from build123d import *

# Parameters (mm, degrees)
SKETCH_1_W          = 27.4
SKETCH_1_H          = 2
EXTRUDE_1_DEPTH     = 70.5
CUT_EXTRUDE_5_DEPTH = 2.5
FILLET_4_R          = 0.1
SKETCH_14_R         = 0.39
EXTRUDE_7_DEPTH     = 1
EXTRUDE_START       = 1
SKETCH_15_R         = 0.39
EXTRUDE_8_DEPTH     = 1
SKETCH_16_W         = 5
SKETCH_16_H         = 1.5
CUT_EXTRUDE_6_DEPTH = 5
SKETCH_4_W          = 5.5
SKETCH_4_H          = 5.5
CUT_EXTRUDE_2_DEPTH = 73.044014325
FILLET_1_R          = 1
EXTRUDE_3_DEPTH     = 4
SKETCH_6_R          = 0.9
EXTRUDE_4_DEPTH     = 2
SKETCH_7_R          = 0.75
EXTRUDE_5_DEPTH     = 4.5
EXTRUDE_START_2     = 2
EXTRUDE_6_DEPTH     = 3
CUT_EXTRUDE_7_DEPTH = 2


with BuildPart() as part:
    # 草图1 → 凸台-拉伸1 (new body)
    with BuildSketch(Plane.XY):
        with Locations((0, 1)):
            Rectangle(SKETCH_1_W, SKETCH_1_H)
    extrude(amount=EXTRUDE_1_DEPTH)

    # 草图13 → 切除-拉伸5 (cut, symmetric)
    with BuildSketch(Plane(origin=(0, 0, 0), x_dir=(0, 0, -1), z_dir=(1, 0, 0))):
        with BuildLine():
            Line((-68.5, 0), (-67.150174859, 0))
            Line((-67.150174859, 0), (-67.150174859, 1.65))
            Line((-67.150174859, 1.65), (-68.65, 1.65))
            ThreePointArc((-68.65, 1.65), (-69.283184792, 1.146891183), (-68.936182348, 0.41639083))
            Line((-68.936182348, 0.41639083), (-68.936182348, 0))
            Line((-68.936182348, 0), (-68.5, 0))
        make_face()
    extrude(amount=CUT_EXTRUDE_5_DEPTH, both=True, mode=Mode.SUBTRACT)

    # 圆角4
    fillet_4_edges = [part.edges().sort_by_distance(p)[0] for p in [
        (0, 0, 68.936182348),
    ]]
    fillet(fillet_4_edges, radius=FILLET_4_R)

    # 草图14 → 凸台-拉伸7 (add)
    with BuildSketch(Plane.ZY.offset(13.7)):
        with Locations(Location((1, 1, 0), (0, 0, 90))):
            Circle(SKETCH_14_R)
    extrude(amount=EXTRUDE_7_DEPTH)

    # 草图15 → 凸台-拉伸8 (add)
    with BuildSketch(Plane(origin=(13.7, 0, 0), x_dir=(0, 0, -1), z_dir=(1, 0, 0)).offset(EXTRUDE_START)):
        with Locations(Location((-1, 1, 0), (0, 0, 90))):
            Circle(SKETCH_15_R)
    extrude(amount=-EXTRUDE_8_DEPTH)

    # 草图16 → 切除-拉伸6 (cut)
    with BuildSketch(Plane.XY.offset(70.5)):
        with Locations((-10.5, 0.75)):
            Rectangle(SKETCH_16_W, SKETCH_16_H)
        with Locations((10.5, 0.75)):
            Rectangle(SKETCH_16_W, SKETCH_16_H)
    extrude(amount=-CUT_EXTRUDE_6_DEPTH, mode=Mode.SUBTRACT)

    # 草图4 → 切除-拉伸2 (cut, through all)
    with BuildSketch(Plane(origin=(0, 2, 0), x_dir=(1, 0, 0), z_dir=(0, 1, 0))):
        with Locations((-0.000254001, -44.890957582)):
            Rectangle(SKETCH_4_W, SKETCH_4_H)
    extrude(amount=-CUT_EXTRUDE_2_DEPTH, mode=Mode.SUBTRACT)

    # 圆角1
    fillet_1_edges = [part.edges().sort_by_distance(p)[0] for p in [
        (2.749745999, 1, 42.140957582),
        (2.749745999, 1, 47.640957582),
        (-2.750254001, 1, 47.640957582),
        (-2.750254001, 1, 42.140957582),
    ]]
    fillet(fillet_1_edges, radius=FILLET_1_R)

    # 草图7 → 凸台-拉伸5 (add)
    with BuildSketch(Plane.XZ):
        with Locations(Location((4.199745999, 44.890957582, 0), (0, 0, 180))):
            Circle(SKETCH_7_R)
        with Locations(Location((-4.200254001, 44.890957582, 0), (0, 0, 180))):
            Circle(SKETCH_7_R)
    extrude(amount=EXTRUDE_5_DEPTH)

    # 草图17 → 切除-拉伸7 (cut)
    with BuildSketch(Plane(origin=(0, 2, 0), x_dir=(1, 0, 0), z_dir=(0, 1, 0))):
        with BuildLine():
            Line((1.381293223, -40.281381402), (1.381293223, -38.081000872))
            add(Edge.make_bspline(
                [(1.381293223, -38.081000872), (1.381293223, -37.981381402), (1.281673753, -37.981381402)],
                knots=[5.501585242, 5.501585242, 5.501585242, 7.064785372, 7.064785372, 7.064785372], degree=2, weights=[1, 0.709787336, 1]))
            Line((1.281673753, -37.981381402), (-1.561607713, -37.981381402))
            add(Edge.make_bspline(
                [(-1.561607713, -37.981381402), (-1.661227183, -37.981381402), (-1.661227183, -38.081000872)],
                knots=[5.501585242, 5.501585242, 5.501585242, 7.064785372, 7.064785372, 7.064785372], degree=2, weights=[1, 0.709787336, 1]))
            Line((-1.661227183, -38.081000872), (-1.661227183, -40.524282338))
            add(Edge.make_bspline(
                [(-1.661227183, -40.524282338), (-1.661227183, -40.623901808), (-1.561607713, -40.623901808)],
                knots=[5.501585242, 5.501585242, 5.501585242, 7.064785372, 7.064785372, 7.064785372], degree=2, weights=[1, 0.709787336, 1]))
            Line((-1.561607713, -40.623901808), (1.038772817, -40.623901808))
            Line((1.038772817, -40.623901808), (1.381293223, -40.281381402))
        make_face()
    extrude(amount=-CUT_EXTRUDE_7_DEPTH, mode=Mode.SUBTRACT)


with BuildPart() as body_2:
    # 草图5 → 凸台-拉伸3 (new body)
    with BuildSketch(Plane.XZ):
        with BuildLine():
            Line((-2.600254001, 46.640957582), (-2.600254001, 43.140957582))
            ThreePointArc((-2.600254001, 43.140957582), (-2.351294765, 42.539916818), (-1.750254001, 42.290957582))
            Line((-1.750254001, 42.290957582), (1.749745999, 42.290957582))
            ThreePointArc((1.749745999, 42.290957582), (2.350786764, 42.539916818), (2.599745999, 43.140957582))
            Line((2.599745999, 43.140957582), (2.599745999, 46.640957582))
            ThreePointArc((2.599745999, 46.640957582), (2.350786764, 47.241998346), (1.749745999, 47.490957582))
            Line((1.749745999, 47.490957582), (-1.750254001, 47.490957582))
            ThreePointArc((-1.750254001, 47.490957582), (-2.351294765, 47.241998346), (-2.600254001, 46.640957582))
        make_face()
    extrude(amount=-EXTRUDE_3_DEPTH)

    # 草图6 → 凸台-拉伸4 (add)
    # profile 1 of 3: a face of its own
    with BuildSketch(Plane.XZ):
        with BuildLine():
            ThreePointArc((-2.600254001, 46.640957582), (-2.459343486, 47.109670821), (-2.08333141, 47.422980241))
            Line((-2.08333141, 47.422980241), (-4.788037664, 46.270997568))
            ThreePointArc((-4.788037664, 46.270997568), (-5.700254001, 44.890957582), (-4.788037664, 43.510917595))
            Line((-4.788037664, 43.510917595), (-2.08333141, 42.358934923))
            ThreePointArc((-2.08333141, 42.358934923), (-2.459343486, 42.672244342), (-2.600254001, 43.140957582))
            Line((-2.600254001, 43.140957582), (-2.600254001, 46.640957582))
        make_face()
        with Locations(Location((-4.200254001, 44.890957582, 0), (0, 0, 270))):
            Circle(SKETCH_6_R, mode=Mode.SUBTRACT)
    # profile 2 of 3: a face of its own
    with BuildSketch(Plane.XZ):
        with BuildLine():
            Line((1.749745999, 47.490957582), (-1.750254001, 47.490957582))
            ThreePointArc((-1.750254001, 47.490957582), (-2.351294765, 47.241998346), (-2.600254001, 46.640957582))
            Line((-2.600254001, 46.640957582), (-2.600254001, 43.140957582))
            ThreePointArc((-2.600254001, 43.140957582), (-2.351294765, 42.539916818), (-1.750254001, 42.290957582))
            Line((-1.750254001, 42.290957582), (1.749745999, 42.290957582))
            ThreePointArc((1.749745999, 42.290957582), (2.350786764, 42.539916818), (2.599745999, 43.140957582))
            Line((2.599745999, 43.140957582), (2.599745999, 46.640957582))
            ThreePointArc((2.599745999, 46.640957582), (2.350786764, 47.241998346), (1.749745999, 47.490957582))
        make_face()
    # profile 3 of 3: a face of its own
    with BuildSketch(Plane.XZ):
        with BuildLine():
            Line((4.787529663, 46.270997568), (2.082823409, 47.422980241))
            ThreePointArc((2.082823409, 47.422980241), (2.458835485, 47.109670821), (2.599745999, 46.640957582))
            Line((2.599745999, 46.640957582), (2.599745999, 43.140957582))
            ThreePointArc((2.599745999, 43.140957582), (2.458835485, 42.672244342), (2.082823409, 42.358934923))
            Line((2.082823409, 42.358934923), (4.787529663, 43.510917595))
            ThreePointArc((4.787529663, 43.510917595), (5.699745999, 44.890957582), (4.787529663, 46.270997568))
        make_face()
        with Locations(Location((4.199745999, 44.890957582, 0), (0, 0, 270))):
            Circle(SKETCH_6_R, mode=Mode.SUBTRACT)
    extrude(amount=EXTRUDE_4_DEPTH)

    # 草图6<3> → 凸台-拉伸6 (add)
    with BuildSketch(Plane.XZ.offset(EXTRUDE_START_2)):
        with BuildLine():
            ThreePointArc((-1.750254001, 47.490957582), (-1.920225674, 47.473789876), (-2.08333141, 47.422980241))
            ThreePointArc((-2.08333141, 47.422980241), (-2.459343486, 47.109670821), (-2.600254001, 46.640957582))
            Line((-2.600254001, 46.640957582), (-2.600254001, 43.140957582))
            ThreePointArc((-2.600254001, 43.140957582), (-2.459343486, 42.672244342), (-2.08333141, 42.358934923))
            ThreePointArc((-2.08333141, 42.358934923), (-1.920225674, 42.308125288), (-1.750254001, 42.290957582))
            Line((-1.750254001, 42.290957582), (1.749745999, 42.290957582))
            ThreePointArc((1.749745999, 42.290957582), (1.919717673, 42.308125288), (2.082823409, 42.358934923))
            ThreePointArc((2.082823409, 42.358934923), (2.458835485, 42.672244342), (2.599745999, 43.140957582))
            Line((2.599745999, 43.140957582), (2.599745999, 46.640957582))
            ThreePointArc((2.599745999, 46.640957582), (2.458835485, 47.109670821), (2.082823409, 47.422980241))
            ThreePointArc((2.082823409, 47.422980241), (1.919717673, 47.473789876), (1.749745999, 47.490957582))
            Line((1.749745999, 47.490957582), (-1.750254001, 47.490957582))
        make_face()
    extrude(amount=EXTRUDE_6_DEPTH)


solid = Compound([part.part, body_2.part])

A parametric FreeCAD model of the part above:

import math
import FreeCAD as App
import Part
import Sketcher

V = App.Vector


def edges_at(feature, points):
    """Names of the edges that pass closest to the given points."""
    edges = feature.Shape.Edges
    near = lambda p: min(range(len(edges)), key=lambda i: edges[i].distToShape(Part.Vertex(*p))[0])
    return sorted({f"Edge{near(p) + 1}" for p in points})

doc = App.newDocument("Part")
body = doc.addObject("PartDesign::Body", "Body")

# Sketch on XY plane
sketch1 = body.newObject("Sketcher::SketchObject", "Sketch")
sketch1.AttachmentSupport = (doc.getObject("XY_Plane"), [""])
sketch1.MapMode = "FlatFace"
sketch1.addGeometry(Part.LineSegment(V(-13.7, 2, 0), V(-13.7, 0, 0)), False)
sketch1.addGeometry(Part.LineSegment(V(-13.7, 0, 0), V(13.7, 0, 0)), False)
sketch1.addGeometry(Part.LineSegment(V(13.7, 0, 0), V(13.7, 2, 0)), False)
sketch1.addGeometry(Part.LineSegment(V(13.7, 2, 0), V(-13.7, 2, 0)), False)
sketch1.addConstraint(Sketcher.Constraint("Coincident", 0, 2, 1, 1))
sketch1.addConstraint(Sketcher.Constraint("Coincident", 1, 2, 2, 1))
sketch1.addConstraint(Sketcher.Constraint("Coincident", 2, 2, 3, 1))
sketch1.addConstraint(Sketcher.Constraint("Coincident", 3, 2, 0, 1))
sketch1.addConstraint(Sketcher.Constraint("Vertical", 0))
sketch1.addConstraint(Sketcher.Constraint("Horizontal", 1))
sketch1.addConstraint(Sketcher.Constraint("Vertical", 2))
sketch1.addConstraint(Sketcher.Constraint("Horizontal", 3))
sketch1.addConstraint(Sketcher.Constraint("Symmetric", 0, 2, 1, 2, -1, 1))
sketch1.addConstraint(Sketcher.Constraint("DistanceY", 0, 2, 0, 1, 2.0))
sketch1.addConstraint(Sketcher.Constraint("DistanceX", 1, 1, 1, 2, 27.4))
pad1 = body.newObject("PartDesign::Pad", "Pad")
pad1.Profile = sketch1
pad1.Length = 70.5

# Sketch on YZ plane
sketch2 = body.newObject("Sketcher::SketchObject", "Sketch001")
sketch2.AttachmentSupport = (doc.getObject("YZ_Plane"), [""])
sketch2.MapMode = "FlatFace"
sketch2.addGeometry(Part.LineSegment(V(0, 67.150175, 0), V(1.65, 67.150175, 0)), False)
sketch2.addGeometry(Part.LineSegment(V(1.65, 67.150175, 0), V(1.65, 68.65, 0)), False)
sketch2.addGeometry(Part.ArcOfCircle(Part.Circle(V(1, 68.65, 0), V(0, 0, 1), 0.65), math.radians(0), math.radians(153.878218)), False)
sketch2.addGeometry(Part.LineSegment(V(0.416391, 68.936182, 0), V(0, 68.936182, 0)), False)
sketch2.addGeometry(Part.LineSegment(V(0, 68.936182, 0), V(0, 67.150175, 0)), False)
sketch2.addConstraint(Sketcher.Constraint("Coincident", 0, 2, 1, 1))
sketch2.addConstraint(Sketcher.Constraint("Tangent", 1, 2, 2, 1))
sketch2.addConstraint(Sketcher.Constraint("Coincident", 2, 2, 3, 1))
sketch2.addConstraint(Sketcher.Constraint("Coincident", 3, 2, 4, 1))
sketch2.addConstraint(Sketcher.Constraint("Coincident", 4, 2, 0, 1))
sketch2.addConstraint(Sketcher.Constraint("Horizontal", 0))
sketch2.addConstraint(Sketcher.Constraint("Vertical", 1))
sketch2.addConstraint(Sketcher.Constraint("Horizontal", 3))
sketch2.addConstraint(Sketcher.Constraint("Vertical", 4))
sketch2.addConstraint(Sketcher.Constraint("PointOnObject", 3, 2, -2))
sketch2.addConstraint(Sketcher.Constraint("Radius", 2, 0.65))
sketch2.addConstraint(Sketcher.Constraint("DistanceX", -1, 1, 2, 3, 1.0))
sketch2.addConstraint(Sketcher.Constraint("DistanceY", -1, 1, 2, 3, 68.65))
sketch2.addConstraint(Sketcher.Constraint("DistanceX", 3, 2, 3, 1, 0.416391))
sketch2.addConstraint(Sketcher.Constraint("DistanceY", 1, 1, 1, 2, 1.499825))
pocket1 = body.newObject("PartDesign::Pocket", "Pocket")
pocket1.Profile = sketch2
pocket1.Length = 5
pocket1.Midplane = True
doc.recompute()

fillet = body.newObject("PartDesign::Fillet", "Fillet")
fillet.Base = (pocket1, edges_at(pocket1, [(0, 0, 68.936)]))
fillet.Radius = 0.1

# Sketch on YZ plane
sketch3 = body.newObject("Sketcher::SketchObject", "Sketch002")
sketch3.AttachmentSupport = (doc.getObject("YZ_Plane"), [""])
sketch3.MapMode = "FlatFace"
sketch3.AttachmentOffset = App.Placement(V(0, 0, -13.7), App.Rotation())
sketch3.addGeometry(Part.Circle(V(1, 1, 0), V(0, 0, 1), 0.39), False)
sketch3.addConstraint(Sketcher.Constraint("Diameter", 0, 0.78))
sketch3.addConstraint(Sketcher.Constraint("DistanceX", -1, 1, 0, 3, 1.0))
sketch3.addConstraint(Sketcher.Constraint("DistanceY", -1, 1, 0, 3, 1.0))
pad2 = body.newObject("PartDesign::Pad", "Pad001")
pad2.Profile = sketch3
pad2.Length = 1
pad2.Reversed = True

# Sketch on YZ plane
sketch4 = body.newObject("Sketcher::SketchObject", "Sketch003")
sketch4.AttachmentSupport = (doc.getObject("YZ_Plane"), [""])
sketch4.MapMode = "FlatFace"
sketch4.AttachmentOffset = App.Placement(V(0, 0, 14.7), App.Rotation())
sketch4.addGeometry(Part.Circle(V(1, 1, 0), V(0, 0, 1), 0.39), False)
sketch4.addConstraint(Sketcher.Constraint("Diameter", 0, 0.78))
sketch4.addConstraint(Sketcher.Constraint("DistanceX", -1, 1, 0, 3, 1.0))
sketch4.addConstraint(Sketcher.Constraint("DistanceY", -1, 1, 0, 3, 1.0))
pad3 = body.newObject("PartDesign::Pad", "Pad002")
pad3.Profile = sketch4
pad3.Length = 1
pad3.Reversed = True

# Sketch on XY plane
sketch5 = body.newObject("Sketcher::SketchObject", "Sketch004")
sketch5.AttachmentSupport = (doc.getObject("XY_Plane"), [""])
sketch5.MapMode = "FlatFace"
sketch5.AttachmentOffset = App.Placement(V(0, 0, 70.5), App.Rotation())
sketch5.addGeometry(Part.LineSegment(V(-13, 1.5, 0), V(-13, 0, 0)), False)
sketch5.addGeometry(Part.LineSegment(V(-13, 0, 0), V(-8, 0, 0)), False)
sketch5.addGeometry(Part.LineSegment(V(-8, 0, 0), V(-8, 1.5, 0)), False)
sketch5.addGeometry(Part.LineSegment(V(-8, 1.5, 0), V(-13, 1.5, 0)), False)
sketch5.addGeometry(Part.LineSegment(V(8, 1.5, 0), V(8, 0, 0)), False)
sketch5.addGeometry(Part.LineSegment(V(8, 0, 0), V(13, 0, 0)), False)
sketch5.addGeometry(Part.LineSegment(V(13, 0, 0), V(13, 1.5, 0)), False)
sketch5.addGeometry(Part.LineSegment(V(13, 1.5, 0), V(8, 1.5, 0)), False)
sketch5.addConstraint(Sketcher.Constraint("Coincident", 0, 2, 1, 1))
sketch5.addConstraint(Sketcher.Constraint("Coincident", 1, 2, 2, 1))
sketch5.addConstraint(Sketcher.Constraint("Coincident", 2, 2, 3, 1))
sketch5.addConstraint(Sketcher.Constraint("Coincident", 3, 2, 0, 1))
sketch5.addConstraint(Sketcher.Constraint("Coincident", 4, 2, 5, 1))
sketch5.addConstraint(Sketcher.Constraint("Coincident", 5, 2, 6, 1))
sketch5.addConstraint(Sketcher.Constraint("Coincident", 6, 2, 7, 1))
sketch5.addConstraint(Sketcher.Constraint("Coincident", 7, 2, 4, 1))
sketch5.addConstraint(Sketcher.Constraint("Vertical", 0))
sketch5.addConstraint(Sketcher.Constraint("Horizontal", 1))
sketch5.addConstraint(Sketcher.Constraint("Vertical", 2))
sketch5.addConstraint(Sketcher.Constraint("Horizontal", 3))
sketch5.addConstraint(Sketcher.Constraint("Vertical", 4))
sketch5.addConstraint(Sketcher.Constraint("Horizontal", 5))
sketch5.addConstraint(Sketcher.Constraint("Vertical", 6))
sketch5.addConstraint(Sketcher.Constraint("Horizontal", 7))
sketch5.addConstraint(Sketcher.Constraint("Symmetric", 1, 2, 4, 2, -1, 1))
sketch5.addConstraint(Sketcher.Constraint("Symmetric", 0, 2, 5, 2, -2))
sketch5.addConstraint(Sketcher.Constraint("Horizontal", 3, 2, 6, 2))
sketch5.addConstraint(Sketcher.Constraint("DistanceX", 1, 1, 1, 2, 5.0))
sketch5.addConstraint(Sketcher.Constraint("DistanceY", 0, 2, 0, 1, 1.5))
sketch5.addConstraint(Sketcher.Constraint("DistanceX", 0, 2, -1, 1, 13.0))
pocket2 = body.newObject("PartDesign::Pocket", "Pocket001")
pocket2.Profile = sketch5
pocket2.Length = 5

# Sketch on XZ plane
sketch6 = body.newObject("Sketcher::SketchObject", "Sketch005")
sketch6.AttachmentSupport = (doc.getObject("XZ_Plane"), [""])
sketch6.MapMode = "FlatFace"
sketch6.AttachmentOffset = App.Placement(V(0, 0, -2), App.Rotation())
sketch6.addGeometry(Part.LineSegment(V(-2.750254, 42.140958, 0), V(-2.750254, 47.640958, 0)), False)
sketch6.addGeometry(Part.LineSegment(V(-2.750254, 47.640958, 0), V(2.749746, 47.640958, 0)), False)
sketch6.addGeometry(Part.LineSegment(V(2.749746, 47.640958, 0), V(2.749746, 42.140958, 0)), False)
sketch6.addGeometry(Part.LineSegment(V(2.749746, 42.140958, 0), V(-2.750254, 42.140958, 0)), False)
sketch6.addConstraint(Sketcher.Constraint("Coincident", 0, 2, 1, 1))
sketch6.addConstraint(Sketcher.Constraint("Coincident", 1, 2, 2, 1))
sketch6.addConstraint(Sketcher.Constraint("Coincident", 2, 2, 3, 1))
sketch6.addConstraint(Sketcher.Constraint("Coincident", 3, 2, 0, 1))
sketch6.addConstraint(Sketcher.Constraint("Vertical", 0))
sketch6.addConstraint(Sketcher.Constraint("Horizontal", 1))
sketch6.addConstraint(Sketcher.Constraint("Vertical", 2))
sketch6.addConstraint(Sketcher.Constraint("Horizontal", 3))
sketch6.addConstraint(Sketcher.Constraint("Equal", 3, 0))
sketch6.addConstraint(Sketcher.Constraint("DistanceX", 1, 1, 1, 2, 5.5))
sketch6.addConstraint(Sketcher.Constraint("DistanceX", 0, 2, -1, 1, 2.750254))
sketch6.addConstraint(Sketcher.Constraint("DistanceY", -1, 1, 0, 2, 47.640958))
pocket3 = body.newObject("PartDesign::Pocket", "Pocket002")
pocket3.Profile = sketch6
pocket3.Type = "ThroughAll"
pocket3.Reversed = True
doc.recompute()

fillet2 = body.newObject("PartDesign::Fillet", "Fillet001")
fillet2.Base = (pocket3, edges_at(pocket3, [
    (2.75, 1, 42.141),
    (2.75, 1, 47.641),
    (-2.75, 1, 47.641),
    (-2.75, 1, 42.141),
]))
fillet2.Radius = 1

# Sketch on XZ plane
sketch7 = body.newObject("Sketcher::SketchObject", "Sketch006")
sketch7.AttachmentSupport = (doc.getObject("XZ_Plane"), [""])
sketch7.MapMode = "FlatFace"
sketch7.addGeometry(Part.Circle(V(4.199746, 44.890958, 0), V(0, 0, 1), 0.75), False)
sketch7.addGeometry(Part.Circle(V(-4.200254, 44.890958, 0), V(0, 0, 1), 0.75), False)
sketch7.addConstraint(Sketcher.Constraint("Equal", 0, 1))
sketch7.addConstraint(Sketcher.Constraint("Horizontal", 0, 3, 1, 3))
sketch7.addConstraint(Sketcher.Constraint("Diameter", 0, 1.5))
sketch7.addConstraint(Sketcher.Constraint("DistanceX", 1, 3, 0, 3, 8.4))
sketch7.addConstraint(Sketcher.Constraint("DistanceX", -1, 1, 0, 3, 4.199746))
sketch7.addConstraint(Sketcher.Constraint("DistanceY", -1, 1, 0, 3, 44.890958))
pad4 = body.newObject("PartDesign::Pad", "Pad003")
pad4.Profile = sketch7
pad4.Length = 4.5

# Sketch on XZ plane
sketch8 = body.newObject("Sketcher::SketchObject", "Sketch007")
sketch8.AttachmentSupport = (doc.getObject("XZ_Plane"), [""])
sketch8.MapMode = "FlatFace"
sketch8.AttachmentOffset = App.Placement(V(0, 0, -2), App.Rotation())
sketch8.addGeometry(Part.LineSegment(V(1.381293, 40.281381, 0), V(1.381293, 38.081001, 0)), False)
sketch8.addGeometry(Part.BSplineCurve([V(1.381293, 38.081001, 0), V(1.381293, 37.981381, 0), V(1.281674, 37.981381, 0)], [3, 3], [5.501585242, 7.064785372], False, 2, [1, 0.709787336, 1], False), False)
sketch8.addGeometry(Part.LineSegment(V(1.281674, 37.981381, 0), V(-1.561608, 37.981381, 0)), False)
sketch8.addGeometry(Part.BSplineCurve([V(-1.561608, 37.981381, 0), V(-1.661227, 37.981381, 0), V(-1.661227, 38.081001, 0)], [3, 3], [5.501585242, 7.064785372], False, 2, [1, 0.709787336, 1], False), False)
sketch8.addGeometry(Part.LineSegment(V(-1.661227, 38.081001, 0), V(-1.661227, 40.524282, 0)), False)
sketch8.addGeometry(Part.BSplineCurve([V(-1.661227, 40.524282, 0), V(-1.661227, 40.623902, 0), V(-1.561608, 40.623902, 0)], [3, 3], [5.501585242, 7.064785372], False, 2, [1, 0.709787336, 1], False), False)
sketch8.addGeometry(Part.LineSegment(V(-1.561608, 40.623902, 0), V(1.038773, 40.623902, 0)), False)
sketch8.addGeometry(Part.LineSegment(V(1.038773, 40.623902, 0), V(1.381293, 40.281381, 0)), False)
sketch8.addConstraint(Sketcher.Constraint("Block", 1))
sketch8.addConstraint(Sketcher.Constraint("Block", 3))
sketch8.addConstraint(Sketcher.Constraint("Block", 5))
sketch8.addConstraint(Sketcher.Constraint("Coincident", 0, 2, 1, 1))
sketch8.addConstraint(Sketcher.Constraint("Coincident", 1, 2, 2, 1))
sketch8.addConstraint(Sketcher.Constraint("Coincident", 2, 2, 3, 1))
sketch8.addConstraint(Sketcher.Constraint("Coincident", 3, 2, 4, 1))
sketch8.addConstraint(Sketcher.Constraint("Coincident", 4, 2, 5, 1))
sketch8.addConstraint(Sketcher.Constraint("Coincident", 5, 2, 6, 1))
sketch8.addConstraint(Sketcher.Constraint("Coincident", 6, 2, 7, 1))
sketch8.addConstraint(Sketcher.Constraint("Coincident", 7, 2, 0, 1))
sketch8.addConstraint(Sketcher.Constraint("Vertical", 0))
sketch8.addConstraint(Sketcher.Constraint("Horizontal", 6))
sketch8.addConstraint(Sketcher.Constraint("DistanceX", 4, 2, 6, 2, 2.7))
sketch8.addConstraint(Sketcher.Constraint("DistanceY", 2, 2, 7, 2, 2.3))
pocket4 = body.newObject("PartDesign::Pocket", "Pocket003")
pocket4.Profile = sketch8
pocket4.Length = 2
pocket4.Reversed = True
body2 = doc.addObject("PartDesign::Body", "Body001")

# Sketch on XZ plane
sketch9 = body2.newObject("Sketcher::SketchObject", "Sketch008")
sketch9.AttachmentSupport = (doc.getObject("XZ_Plane001"), [""])
sketch9.MapMode = "FlatFace"
sketch9.addGeometry(Part.LineSegment(V(-2.600254, 46.640958, 0), V(-2.600254, 43.140958, 0)), False)
sketch9.addGeometry(Part.ArcOfCircle(Part.Circle(V(-1.750254, 43.140958, 0), V(0, 0, 1), 0.85), math.radians(180), math.radians(270)), False)
sketch9.addGeometry(Part.LineSegment(V(-1.750254, 42.290958, 0), V(1.749746, 42.290958, 0)), False)
sketch9.addGeometry(Part.ArcOfCircle(Part.Circle(V(1.749746, 43.140958, 0), V(0, 0, 1), 0.85), math.radians(-90), math.radians(0)), False)
sketch9.addGeometry(Part.LineSegment(V(2.599746, 43.140958, 0), V(2.599746, 46.640958, 0)), False)
sketch9.addGeometry(Part.ArcOfCircle(Part.Circle(V(1.749746, 46.640958, 0), V(0, 0, 1), 0.85), math.radians(0), math.radians(90)), False)
sketch9.addGeometry(Part.LineSegment(V(1.749746, 47.490958, 0), V(-1.750254, 47.490958, 0)), False)
sketch9.addGeometry(Part.ArcOfCircle(Part.Circle(V(-1.750254, 46.640958, 0), V(0, 0, 1), 0.85), math.radians(90), math.radians(180)), False)
sketch9.addConstraint(Sketcher.Constraint("Tangent", 0, 2, 1, 1))
sketch9.addConstraint(Sketcher.Constraint("Tangent", 1, 2, 2, 1))
sketch9.addConstraint(Sketcher.Constraint("Tangent", 2, 2, 3, 1))
sketch9.addConstraint(Sketcher.Constraint("Tangent", 3, 2, 4, 1))
sketch9.addConstraint(Sketcher.Constraint("Tangent", 4, 2, 5, 1))
sketch9.addConstraint(Sketcher.Constraint("Tangent", 5, 2, 6, 1))
sketch9.addConstraint(Sketcher.Constraint("Tangent", 6, 2, 7, 1))
sketch9.addConstraint(Sketcher.Constraint("Tangent", 7, 2, 0, 1))
sketch9.addConstraint(Sketcher.Constraint("Vertical", 0))
sketch9.addConstraint(Sketcher.Constraint("Horizontal", 2))
sketch9.addConstraint(Sketcher.Constraint("Vertical", 4))
sketch9.addConstraint(Sketcher.Constraint("Horizontal", 6))
sketch9.addConstraint(Sketcher.Constraint("Equal", 1, 3))
sketch9.addConstraint(Sketcher.Constraint("Equal", 3, 5))
sketch9.addConstraint(Sketcher.Constraint("Equal", 5, 7))
sketch9.addConstraint(Sketcher.Constraint("Equal", 6, 0))
sketch9.addConstraint(Sketcher.Constraint("Radius", 1, 0.85))
sketch9.addConstraint(Sketcher.Constraint("DistanceX", 2, 1, 2, 2, 3.5))
sketch9.addConstraint(Sketcher.Constraint("DistanceX", 1, 3, -1, 1, 1.750254))
sketch9.addConstraint(Sketcher.Constraint("DistanceY", -1, 1, 1, 3, 43.140958))
pad5 = body2.newObject("PartDesign::Pad", "Pad004")
pad5.Profile = sketch9
pad5.Length = 4
pad5.Reversed = True

# Sketch on XZ plane
sketch10 = body2.newObject("Sketcher::SketchObject", "Sketch009")
sketch10.AttachmentSupport = (doc.getObject("XZ_Plane001"), [""])
sketch10.MapMode = "FlatFace"
sketch10.addGeometry(Part.LineSegment(V(-2.083331, 47.42298, 0), V(-4.788038, 46.270998, 0)), False)
sketch10.addGeometry(Part.ArcOfCircle(Part.Circle(V(-4.200254, 44.890958, 0), V(0, 0, 1), 1.5), math.radians(113.070021), math.radians(246.929979)), False)
sketch10.addGeometry(Part.LineSegment(V(-4.788038, 43.510918, 0), V(-2.083331, 42.358935, 0)), False)
sketch10.addGeometry(Part.ArcOfCircle(Part.Circle(V(-1.750254, 43.140958, 0), V(0, 0, 1), 0.85), math.radians(-113.070021), math.radians(-90)), False)
sketch10.addGeometry(Part.LineSegment(V(-1.750254, 42.290958, 0), V(1.749746, 42.290958, 0)), False)
sketch10.addGeometry(Part.ArcOfCircle(Part.Circle(V(1.749746, 43.140958, 0), V(0, 0, 1), 0.85), math.radians(-90), math.radians(-66.929979)), False)
sketch10.addGeometry(Part.LineSegment(V(2.082823, 42.358935, 0), V(4.78753, 43.510918, 0)), False)
sketch10.addGeometry(Part.ArcOfCircle(Part.Circle(V(4.199746, 44.890958, 0), V(0, 0, 1), 1.5), math.radians(-66.929979), math.radians(66.929979)), False)
sketch10.addGeometry(Part.LineSegment(V(4.78753, 46.270998, 0), V(2.082823, 47.42298, 0)), False)
sketch10.addGeometry(Part.ArcOfCircle(Part.Circle(V(1.749746, 46.640958, 0), V(0, 0, 1), 0.85), math.radians(66.929979), math.radians(90)), False)
sketch10.addGeometry(Part.LineSegment(V(1.749746, 47.490958, 0), V(-1.750254, 47.490958, 0)), False)
sketch10.addGeometry(Part.ArcOfCircle(Part.Circle(V(-1.750254, 46.640958, 0), V(0, 0, 1), 0.85), math.radians(90), math.radians(113.070021)), False)
sketch10.addGeometry(Part.Circle(V(-4.200254, 44.890958, 0), V(0, 0, 1), 0.9), False)
sketch10.addGeometry(Part.Circle(V(4.199746, 44.890958, 0), V(0, 0, 1), 0.9), False)
sketch10.addConstraint(Sketcher.Constraint("Tangent", 0, 2, 1, 1))
sketch10.addConstraint(Sketcher.Constraint("Tangent", 1, 2, 2, 1))
sketch10.addConstraint(Sketcher.Constraint("Tangent", 2, 2, 3, 1))
sketch10.addConstraint(Sketcher.Constraint("Tangent", 3, 2, 4, 1))
sketch10.addConstraint(Sketcher.Constraint("Tangent", 4, 2, 5, 1))
sketch10.addConstraint(Sketcher.Constraint("Tangent", 5, 2, 6, 1))
sketch10.addConstraint(Sketcher.Constraint("Tangent", 6, 2, 7, 1))
sketch10.addConstraint(Sketcher.Constraint("Tangent", 7, 2, 8, 1))
sketch10.addConstraint(Sketcher.Constraint("Tangent", 8, 2, 9, 1))
sketch10.addConstraint(Sketcher.Constraint("Tangent", 9, 2, 10, 1))
sketch10.addConstraint(Sketcher.Constraint("Tangent", 10, 2, 11, 1))
sketch10.addConstraint(Sketcher.Constraint("Tangent", 11, 2, 0, 1))
sketch10.addConstraint(Sketcher.Constraint("Horizontal", 4))
sketch10.addConstraint(Sketcher.Constraint("Horizontal", 10))
sketch10.addConstraint(Sketcher.Constraint("Coincident", 12, 3, 1, 3))
sketch10.addConstraint(Sketcher.Constraint("Coincident", 13, 3, 7, 3))
sketch10.addConstraint(Sketcher.Constraint("Equal", 3, 5))
sketch10.addConstraint(Sketcher.Constraint("Equal", 1, 7))
sketch10.addConstraint(Sketcher.Constraint("Equal", 5, 9))
sketch10.addConstraint(Sketcher.Constraint("Equal", 9, 11))
sketch10.addConstraint(Sketcher.Constraint("Equal", 12, 13))
sketch10.addConstraint(Sketcher.Constraint("Parallel", 0, 6))
sketch10.addConstraint(Sketcher.Constraint("Parallel", 2, 8))
sketch10.addConstraint(Sketcher.Constraint("Horizontal", 1, 3, 7, 3))
sketch10.addConstraint(Sketcher.Constraint("Horizontal", 2, 2, 5, 2))
sketch10.addConstraint(Sketcher.Constraint("Vertical", 5, 3, 9, 3))
sketch10.addConstraint(Sketcher.Constraint("Diameter", 12, 1.8))
sketch10.addConstraint(Sketcher.Constraint("Radius", 1, 1.5))
sketch10.addConstraint(Sketcher.Constraint("Radius", 3, 0.85))
sketch10.addConstraint(Sketcher.Constraint("DistanceX", 4, 1, 4, 2, 3.5))
sketch10.addConstraint(Sketcher.Constraint("DistanceX", 1, 3, 7, 3, 8.4))
sketch10.addConstraint(Sketcher.Constraint("DistanceY", 5, 3, 9, 3, 3.5))
sketch10.addConstraint(Sketcher.Constraint("DistanceX", 2, 2, -1, 1, 2.083331))
sketch10.addConstraint(Sketcher.Constraint("DistanceY", -1, 1, 8, 2, 47.42298))
pad6 = body2.newObject("PartDesign::Pad", "Pad005")
pad6.Profile = sketch10
pad6.Length = 2

# Sketch on XZ plane
sketch11 = body2.newObject("Sketcher::SketchObject", "Sketch010")
sketch11.AttachmentSupport = (doc.getObject("XZ_Plane001"), [""])
sketch11.MapMode = "FlatFace"
sketch11.AttachmentOffset = App.Placement(V(0, 0, 2), App.Rotation())
sketch11.addGeometry(Part.ArcOfCircle(Part.Circle(V(-1.750254, 46.640958, 0), V(0, 0, 1), 0.85), math.radians(90), math.radians(113.07002)), False)
sketch11.addGeometry(Part.ArcOfCircle(Part.Circle(V(-1.750254, 46.640958, 0), V(0, 0, 1), 0.85), math.radians(113.070021), math.radians(180)), False)
sketch11.addGeometry(Part.LineSegment(V(-2.600254, 46.640958, 0), V(-2.600254, 43.140958, 0)), False)
sketch11.addGeometry(Part.ArcOfCircle(Part.Circle(V(-1.750254, 43.140958, 0), V(0, 0, 1), 0.85), math.radians(-180), math.radians(-113.070021)), False)
sketch11.addGeometry(Part.ArcOfCircle(Part.Circle(V(-1.750254, 43.140958, 0), V(0, 0, 1), 0.85), math.radians(-113.07002), math.radians(-90)), False)
sketch11.addGeometry(Part.LineSegment(V(-1.750254, 42.290958, 0), V(1.749746, 42.290958, 0)), False)
sketch11.addGeometry(Part.ArcOfCircle(Part.Circle(V(1.749746, 43.140958, 0), V(0, 0, 1), 0.85), math.radians(-90), math.radians(-66.92998)), False)
sketch11.addGeometry(Part.ArcOfCircle(Part.Circle(V(1.749746, 43.140958, 0), V(0, 0, 1), 0.85), math.radians(-66.929979), math.radians(0)), False)
sketch11.addGeometry(Part.LineSegment(V(2.599746, 43.140958, 0), V(2.599746, 46.640958, 0)), False)
sketch11.addGeometry(Part.ArcOfCircle(Part.Circle(V(1.749746, 46.640958, 0), V(0, 0, 1), 0.85), math.radians(0), math.radians(66.929979)), False)
sketch11.addGeometry(Part.ArcOfCircle(Part.Circle(V(1.749746, 46.640958, 0), V(0, 0, 1), 0.85), math.radians(66.92998), math.radians(90)), False)
sketch11.addGeometry(Part.LineSegment(V(1.749746, 47.490958, 0), V(-1.750254, 47.490958, 0)), False)
sketch11.addConstraint(Sketcher.Constraint("Tangent", 0, 2, 1, 1))
sketch11.addConstraint(Sketcher.Constraint("Tangent", 1, 2, 2, 1))
sketch11.addConstraint(Sketcher.Constraint("Tangent", 2, 2, 3, 1))
sketch11.addConstraint(Sketcher.Constraint("Tangent", 3, 2, 4, 1))
sketch11.addConstraint(Sketcher.Constraint("Tangent", 4, 2, 5, 1))
sketch11.addConstraint(Sketcher.Constraint("Tangent", 5, 2, 6, 1))
sketch11.addConstraint(Sketcher.Constraint("Tangent", 6, 2, 7, 1))
sketch11.addConstraint(Sketcher.Constraint("Tangent", 7, 2, 8, 1))
sketch11.addConstraint(Sketcher.Constraint("Tangent", 8, 2, 9, 1))
sketch11.addConstraint(Sketcher.Constraint("Tangent", 9, 2, 10, 1))
sketch11.addConstraint(Sketcher.Constraint("Tangent", 10, 2, 11, 1))
sketch11.addConstraint(Sketcher.Constraint("Tangent", 11, 2, 0, 1))
sketch11.addConstraint(Sketcher.Constraint("Vertical", 2))
sketch11.addConstraint(Sketcher.Constraint("Horizontal", 5))
sketch11.addConstraint(Sketcher.Constraint("Vertical", 8))
sketch11.addConstraint(Sketcher.Constraint("Horizontal", 11))
sketch11.addConstraint(Sketcher.Constraint("Equal", 0, 1))
sketch11.addConstraint(Sketcher.Constraint("Equal", 1, 3))
sketch11.addConstraint(Sketcher.Constraint("Equal", 3, 4))
sketch11.addConstraint(Sketcher.Constraint("Equal", 4, 6))
sketch11.addConstraint(Sketcher.Constraint("Equal", 6, 7))
sketch11.addConstraint(Sketcher.Constraint("Equal", 7, 9))
sketch11.addConstraint(Sketcher.Constraint("Equal", 9, 10))
sketch11.addConstraint(Sketcher.Constraint("Horizontal", 3, 2, 6, 2))
sketch11.addConstraint(Sketcher.Constraint("Horizontal", 0, 2, 9, 2))
sketch11.addConstraint(Sketcher.Constraint("Vertical", 0, 2, 3, 2))
sketch11.addConstraint(Sketcher.Constraint("Equal", 11, 2))
sketch11.addConstraint(Sketcher.Constraint("Radius", 0, 0.85))
sketch11.addConstraint(Sketcher.Constraint("DistanceX", 5, 1, 5, 2, 3.5))
sketch11.addConstraint(Sketcher.Constraint("DistanceX", 0, 2, -1, 1, 2.083331))
sketch11.addConstraint(Sketcher.Constraint("DistanceY", -1, 1, 0, 2, 47.42298))
sketch11.addConstraint(Sketcher.Constraint("DistanceX", 0, 3, -1, 1, 1.750254))
pad7 = body2.newObject("PartDesign::Pad", "Pad006")
pad7.Profile = sketch11
pad7.Length = 3

doc.recompute()
